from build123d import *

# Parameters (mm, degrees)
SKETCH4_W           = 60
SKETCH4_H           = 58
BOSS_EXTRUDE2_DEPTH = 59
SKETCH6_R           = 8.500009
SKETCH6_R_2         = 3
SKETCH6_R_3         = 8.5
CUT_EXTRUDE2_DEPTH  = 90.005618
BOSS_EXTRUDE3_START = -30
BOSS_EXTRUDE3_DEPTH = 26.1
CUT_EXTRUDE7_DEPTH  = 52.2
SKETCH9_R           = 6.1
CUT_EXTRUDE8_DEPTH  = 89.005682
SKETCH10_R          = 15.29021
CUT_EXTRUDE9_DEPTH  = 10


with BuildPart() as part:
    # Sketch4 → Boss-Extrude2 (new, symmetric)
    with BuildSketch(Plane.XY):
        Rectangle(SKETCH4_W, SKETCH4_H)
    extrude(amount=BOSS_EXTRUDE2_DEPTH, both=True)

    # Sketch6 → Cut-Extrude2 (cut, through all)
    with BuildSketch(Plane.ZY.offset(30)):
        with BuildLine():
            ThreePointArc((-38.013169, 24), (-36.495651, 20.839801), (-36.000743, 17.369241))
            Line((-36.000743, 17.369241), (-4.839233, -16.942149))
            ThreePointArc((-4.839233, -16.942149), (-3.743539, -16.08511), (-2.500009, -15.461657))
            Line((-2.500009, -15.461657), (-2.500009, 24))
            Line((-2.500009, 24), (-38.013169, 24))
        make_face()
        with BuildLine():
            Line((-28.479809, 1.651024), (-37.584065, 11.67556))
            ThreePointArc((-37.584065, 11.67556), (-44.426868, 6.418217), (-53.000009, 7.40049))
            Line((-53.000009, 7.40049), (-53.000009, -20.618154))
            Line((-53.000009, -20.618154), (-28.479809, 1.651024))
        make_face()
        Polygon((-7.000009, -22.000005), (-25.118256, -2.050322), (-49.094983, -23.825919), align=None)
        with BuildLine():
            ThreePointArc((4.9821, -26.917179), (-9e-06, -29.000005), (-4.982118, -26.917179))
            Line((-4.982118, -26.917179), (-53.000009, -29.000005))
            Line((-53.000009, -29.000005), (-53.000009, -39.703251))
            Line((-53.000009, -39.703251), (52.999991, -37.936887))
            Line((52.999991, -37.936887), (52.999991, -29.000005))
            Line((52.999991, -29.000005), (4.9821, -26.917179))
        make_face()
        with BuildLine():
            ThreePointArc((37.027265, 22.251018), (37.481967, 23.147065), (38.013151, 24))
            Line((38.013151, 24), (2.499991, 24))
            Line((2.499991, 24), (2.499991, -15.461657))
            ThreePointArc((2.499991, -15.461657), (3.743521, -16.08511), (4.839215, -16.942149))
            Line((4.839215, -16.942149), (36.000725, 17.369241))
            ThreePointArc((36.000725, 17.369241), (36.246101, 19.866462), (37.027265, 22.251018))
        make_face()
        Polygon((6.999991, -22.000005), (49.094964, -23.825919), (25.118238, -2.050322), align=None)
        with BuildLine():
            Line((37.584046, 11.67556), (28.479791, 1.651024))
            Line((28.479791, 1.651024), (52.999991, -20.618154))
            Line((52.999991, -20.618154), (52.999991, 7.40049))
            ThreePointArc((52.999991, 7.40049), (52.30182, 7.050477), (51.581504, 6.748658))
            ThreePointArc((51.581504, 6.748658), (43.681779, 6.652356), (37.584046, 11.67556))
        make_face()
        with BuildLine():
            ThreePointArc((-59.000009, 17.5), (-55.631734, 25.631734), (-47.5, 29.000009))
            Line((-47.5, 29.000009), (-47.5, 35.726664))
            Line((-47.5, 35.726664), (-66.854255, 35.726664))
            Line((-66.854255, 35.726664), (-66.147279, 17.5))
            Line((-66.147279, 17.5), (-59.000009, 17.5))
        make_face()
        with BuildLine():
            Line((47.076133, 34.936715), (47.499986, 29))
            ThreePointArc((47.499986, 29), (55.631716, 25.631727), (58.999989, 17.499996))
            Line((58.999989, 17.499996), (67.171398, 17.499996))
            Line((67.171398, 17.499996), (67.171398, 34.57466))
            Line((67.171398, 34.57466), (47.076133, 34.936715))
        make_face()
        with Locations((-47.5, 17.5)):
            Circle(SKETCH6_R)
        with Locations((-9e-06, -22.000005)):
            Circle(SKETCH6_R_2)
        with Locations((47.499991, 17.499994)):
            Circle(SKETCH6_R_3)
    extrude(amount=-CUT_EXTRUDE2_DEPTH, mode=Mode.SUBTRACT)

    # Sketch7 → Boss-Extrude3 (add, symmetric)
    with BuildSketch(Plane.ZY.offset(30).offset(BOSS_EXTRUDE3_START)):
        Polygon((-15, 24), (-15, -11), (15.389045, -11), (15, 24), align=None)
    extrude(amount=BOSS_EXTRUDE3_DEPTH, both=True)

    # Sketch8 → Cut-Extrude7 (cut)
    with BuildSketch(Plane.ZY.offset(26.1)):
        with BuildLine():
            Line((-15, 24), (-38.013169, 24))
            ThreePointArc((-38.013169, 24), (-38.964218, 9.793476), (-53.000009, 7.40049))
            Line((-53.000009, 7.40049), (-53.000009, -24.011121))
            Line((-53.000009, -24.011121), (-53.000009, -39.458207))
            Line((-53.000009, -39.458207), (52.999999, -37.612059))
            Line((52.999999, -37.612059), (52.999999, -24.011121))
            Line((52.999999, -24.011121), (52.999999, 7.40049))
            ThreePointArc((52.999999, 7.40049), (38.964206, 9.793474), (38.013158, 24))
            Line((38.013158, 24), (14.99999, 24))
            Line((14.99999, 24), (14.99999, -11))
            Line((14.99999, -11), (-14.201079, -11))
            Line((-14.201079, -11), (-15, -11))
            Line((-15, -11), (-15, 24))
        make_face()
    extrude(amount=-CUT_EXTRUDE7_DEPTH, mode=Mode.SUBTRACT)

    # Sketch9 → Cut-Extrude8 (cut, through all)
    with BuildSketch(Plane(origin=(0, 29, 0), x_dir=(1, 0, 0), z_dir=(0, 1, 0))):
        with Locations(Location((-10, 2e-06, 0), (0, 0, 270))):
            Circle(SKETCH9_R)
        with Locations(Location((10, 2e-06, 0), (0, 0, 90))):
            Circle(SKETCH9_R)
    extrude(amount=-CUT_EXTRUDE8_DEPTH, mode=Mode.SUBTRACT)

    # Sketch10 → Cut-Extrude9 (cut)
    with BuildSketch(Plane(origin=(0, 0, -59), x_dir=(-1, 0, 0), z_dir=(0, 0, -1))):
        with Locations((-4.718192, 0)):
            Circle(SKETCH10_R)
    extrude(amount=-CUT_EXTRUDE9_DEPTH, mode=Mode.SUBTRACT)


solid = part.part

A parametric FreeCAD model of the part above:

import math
import FreeCAD as App
import Part
import Sketcher

V = App.Vector

doc = App.newDocument("Part")
body = doc.addObject("PartDesign::Body", "Body")

# Sketch on XY plane
sketch1 = body.newObject("Sketcher::SketchObject", "Sketch")
sketch1.AttachmentSupport = (doc.getObject("XY_Plane"), [""])
sketch1.MapMode = "FlatFace"
sketch1.addGeometry(Part.LineSegment(V(-30, 29, 0), V(-30, -29, 0)), False)
sketch1.addGeometry(Part.LineSegment(V(-30, -29, 0), V(30, -29, 0)), False)
sketch1.addGeometry(Part.LineSegment(V(30, -29, 0), V(30, 29, 0)), False)
sketch1.addGeometry(Part.LineSegment(V(30, 29, 0), V(-30, 29, 0)), False)
sketch1.addConstraint(Sketcher.Constraint("Coincident", 0, 2, 1, 1))
sketch1.addConstraint(Sketcher.Constraint("Coincident", 1, 2, 2, 1))
sketch1.addConstraint(Sketcher.Constraint("Coincident", 2, 2, 3, 1))
sketch1.addConstraint(Sketcher.Constraint("Coincident", 3, 2, 0, 1))
sketch1.addConstraint(Sketcher.Constraint("Vertical", 0))
sketch1.addConstraint(Sketcher.Constraint("Horizontal", 1))
sketch1.addConstraint(Sketcher.Constraint("Vertical", 2))
sketch1.addConstraint(Sketcher.Constraint("Horizontal", 3))
sketch1.addConstraint(Sketcher.Constraint("Symmetric", 0, 2, 2, 2, -1, 1))
sketch1.addConstraint(Sketcher.Constraint("DistanceX", 1, 1, 1, 2, 60.0))
sketch1.addConstraint(Sketcher.Constraint("DistanceY", 0, 2, 0, 1, 58.0))
pad1 = body.newObject("PartDesign::Pad", "Pad")
pad1.Profile = sketch1
pad1.Length = 118
pad1.Midplane = True

# Sketch on YZ plane
sketch2 = body.newObject("Sketcher::SketchObject", "Sketch001")
sketch2.AttachmentSupport = (doc.getObject("YZ_Plane"), [""])
sketch2.MapMode = "FlatFace"
sketch2.AttachmentOffset = App.Placement(V(0, 0, -30), App.Rotation())
sketch2.addGeometry(Part.ArcOfCircle(Part.Circle(V(17.499992, -47.500015, 0), V(0, 0, 1), 11.500016), math.radians(55.582615), math.radians(90.651445)), False)
sketch2.addGeometry(Part.LineSegment(V(17.369241, -36.000743, 0), V(-16.942149, -4.839233, 0)), False)
sketch2.addGeometry(Part.ArcOfCircle(Part.Circle(V(-21.999992, -0.000018, 0), V(0, 0, 1), 6.999984), math.radians(-43.734533), math.radians(-20.924806)), False)
sketch2.addGeometry(Part.LineSegment(V(-15.461657, -2.500009, 0), V(24, -2.500009, 0)), False)
sketch2.addGeometry(Part.LineSegment(V(24, -2.500009, 0), V(24, -38.013169, 0)), False)
sketch2.addGeometry(Part.LineSegment(V(1.651024, -28.479809, 0), V(11.67556, -37.584065, 0)), False)
sketch2.addGeometry(Part.ArcOfCircle(Part.Circle(V(17.499994, -47.500009, 0), V(0, 0, 1), 11.499999), math.radians(120.429154), math.radians(208.571879)), False)
sketch2.addGeometry(Part.LineSegment(V(7.40049, -53.000009, 0), V(-20.618154, -53.000009, 0)), False)
sketch2.addGeometry(Part.LineSegment(V(-20.618154, -53.000009, 0), V(1.651024, -28.479809, 0)), False)
sketch2.addGeometry(Part.LineSegment(V(-22.000005, -7.000009, 0), V(-2.050322, -25.118256, 0)), False)
sketch2.addGeometry(Part.LineSegment(V(-2.050322, -25.118256, 0), V(-23.825919, -49.094983, 0)), False)
sketch2.addGeometry(Part.LineSegment(V(-23.825919, -49.094983, 0), V(-22.000005, -7.000009, 0)), False)
sketch2.addGeometry(Part.ArcOfCircle(Part.Circle(V(-22.000003, -0.000009, 0), V(0, 0, 1), 7.000002), math.radians(134.624184), math.radians(225.375816)), False)
sketch2.addGeometry(Part.LineSegment(V(-26.917179, -4.982118, 0), V(-29.000005, -53.000009, 0)), False)
sketch2.addGeometry(Part.LineSegment(V(-29.000005, -53.000009, 0), V(-39.703251, -53.000009, 0)), False)
sketch2.addGeometry(Part.LineSegment(V(-39.703251, -53.000009, 0), V(-37.936887, 52.999991, 0)), False)
sketch2.addGeometry(Part.LineSegment(V(-37.936887, 52.999991, 0), V(-29.000005, 52.999991, 0)), False)
sketch2.addGeometry(Part.LineSegment(V(-29.000005, 52.999991, 0), V(-26.917179, 4.9821, 0)), False)
sketch2.addGeometry(Part.ArcOfCircle(Part.Circle(V(17.499996, 47.499983, 0), V(0, 0, 1), 11.500002), math.radians(-65.598248), math.radians(-55.582593)), False)
sketch2.addGeometry(Part.LineSegment(V(24, 38.013151, 0), V(24, 2.499991, 0)), False)
sketch2.addGeometry(Part.LineSegment(V(24, 2.499991, 0), V(-15.461657, 2.499991, 0)), False)
sketch2.addGeometry(Part.ArcOfCircle(Part.Circle(V(-21.999992, 0, 0), V(0, 0, 1), 6.999984), math.radians(20.924806), math.radians(43.734533)), False)
sketch2.addGeometry(Part.LineSegment(V(-16.942149, 4.839215, 0), V(17.369241, 36.000725, 0)), False)
sketch2.addGeometry(Part.ArcOfCircle(Part.Circle(V(17.499992, 47.500002, 0), V(0, 0, 1), 11.50002), math.radians(-90.651447), math.radians(-65.598268)), False)
sketch2.addGeometry(Part.LineSegment(V(-22.000005, 6.999991, 0), V(-23.825919, 49.094964, 0)), False)
sketch2.addGeometry(Part.LineSegment(V(-23.825919, 49.094964, 0), V(-2.050322, 25.118238, 0)), False)
sketch2.addGeometry(Part.LineSegment(V(-2.050322, 25.118238, 0), V(-22.000005, 6.999991, 0)), False)
sketch2.addGeometry(Part.LineSegment(V(11.67556, 37.584046, 0), V(1.651024, 28.479791, 0)), False)
sketch2.addGeometry(Part.LineSegment(V(1.651024, 28.479791, 0), V(-20.618154, 52.999991, 0)), False)
sketch2.addGeometry(Part.LineSegment(V(-20.618154, 52.999991, 0), V(7.40049, 52.999991, 0)), False)
sketch2.addGeometry(Part.ArcOfCircle(Part.Circle(V(17.500172, 47.499912, 0), V(0, 0, 1), 11.500193), math.radians(151.428196), math.radians(159.211759)), False)
sketch2.addGeometry(Part.ArcOfCircle(Part.Circle(V(17.499993, 47.49999, 0), V(0, 0, 1), 11.499998), math.radians(159.211806), math.radians(239.570851)), False)
sketch2.addGeometry(Part.ArcOfCircle(Part.Circle(V(17.499999, -47.499999, 0), V(0, 0, 1), 11.50001), math.radians(-89.999994), math.radians(-0.000006)), False)
sketch2.addGeometry(Part.LineSegment(V(29.000009, -47.5, 0), V(35.726664, -47.5, 0)), False)
sketch2.addGeometry(Part.LineSegment(V(35.726664, -47.5, 0), V(35.726664, -66.854255, 0)), False)
sketch2.addGeometry(Part.LineSegment(V(35.726664, -66.854255, 0), V(17.5, -66.147279, 0)), False)
sketch2.addGeometry(Part.LineSegment(V(17.5, -66.147279, 0), V(17.5, -59.000009, 0)), False)
sketch2.addGeometry(Part.LineSegment(V(34.936715, 47.076133, 0), V(29, 47.499986, 0)), False)
sketch2.addGeometry(Part.ArcOfCircle(Part.Circle(V(17.499997, 47.499986, 0), V(0, 0, 1), 11.500003), math.radians(0.000002), math.radians(90.000003)), False)
sketch2.addGeometry(Part.LineSegment(V(17.499996, 58.999989, 0), V(17.499996, 67.171398, 0)), False)
sketch2.addGeometry(Part.LineSegment(V(17.499996, 67.171398, 0), V(34.57466, 67.171398, 0)), False)
sketch2.addGeometry(Part.LineSegment(V(34.57466, 67.171398, 0), V(34.936715, 47.076133, 0)), False)
sketch2.addGeometry(Part.Circle(V(17.5, -47.5, 0), V(0, 0, 1), 8.500009), False)
sketch2.addGeometry(Part.Circle(V(-22.000005, -0.000009, 0), V(0, 0, 1), 3), False)
sketch2.addGeometry(Part.Circle(V(17.499994, 47.499991, 0), V(0, 0, 1), 8.5), False)
sketch2.addConstraint(Sketcher.Constraint("Coincident", 0, 2, 1, 1))
sketch2.addConstraint(Sketcher.Constraint("Coincident", 1, 2, 2, 1))
sketch2.addConstraint(Sketcher.Constraint("Coincident", 2, 2, 3, 1))
sketch2.addConstraint(Sketcher.Constraint("Coincident", 3, 2, 4, 1))
sketch2.addConstraint(Sketcher.Constraint("Coincident", 4, 2, 0, 1))
sketch2.addConstraint(Sketcher.Constraint("Coincident", 5, 2, 6, 1))
sketch2.addConstraint(Sketcher.Constraint("Coincident", 6, 2, 7, 1))
sketch2.addConstraint(Sketcher.Constraint("Coincident", 7, 2, 8, 1))
sketch2.addConstraint(Sketcher.Constraint("Coincident", 8, 2, 5, 1))
sketch2.addConstraint(Sketcher.Constraint("Coincident", 9, 2, 10, 1))
sketch2.addConstraint(Sketcher.Constraint("Coincident", 10, 2, 11, 1))
sketch2.addConstraint(Sketcher.Constraint("Coincident", 11, 2, 9, 1))
sketch2.addConstraint(Sketcher.Constraint("Coincident", 12, 2, 13, 1))
sketch2.addConstraint(Sketcher.Constraint("Coincident", 13, 2, 14, 1))
sketch2.addConstraint(Sketcher.Constraint("Coincident", 14, 2, 15, 1))
sketch2.addConstraint(Sketcher.Constraint("Coincident", 15, 2, 16, 1))
sketch2.addConstraint(Sketcher.Constraint("Coincident", 16, 2, 17, 1))
sketch2.addConstraint(Sketcher.Constraint("Coincident", 17, 2, 12, 1))
sketch2.addConstraint(Sketcher.Constraint("Coincident", 18, 2, 19, 1))
sketch2.addConstraint(Sketcher.Constraint("Coincident", 19, 2, 20, 1))
sketch2.addConstraint(Sketcher.Constraint("Coincident", 20, 2, 21, 1))
sketch2.addConstraint(Sketcher.Constraint("Coincident", 21, 2, 22, 1))
sketch2.addConstraint(Sketcher.Constraint("Coincident", 22, 2, 23, 1))
sketch2.addConstraint(Sketcher.Constraint("Coincident", 23, 2, 18, 1))
sketch2.addConstraint(Sketcher.Constraint("Coincident", 24, 2, 25, 1))
sketch2.addConstraint(Sketcher.Constraint("Coincident", 25, 2, 26, 1))
sketch2.addConstraint(Sketcher.Constraint("Coincident", 26, 2, 24, 1))
sketch2.addConstraint(Sketcher.Constraint("Coincident", 27, 2, 28, 1))
sketch2.addConstraint(Sketcher.Constraint("Coincident", 28, 2, 29, 1))
sketch2.addConstraint(Sketcher.Constraint("Coincident", 29, 2, 30, 1))
sketch2.addConstraint(Sketcher.Constraint("Coincident", 30, 2, 31, 1))
sketch2.addConstraint(Sketcher.Constraint("Coincident", 31, 2, 27, 1))
sketch2.addConstraint(Sketcher.Constraint("Coincident", 32, 2, 33, 1))
sketch2.addConstraint(Sketcher.Constraint("Coincident", 33, 2, 34, 1))
sketch2.addConstraint(Sketcher.Constraint("Coincident", 34, 2, 35, 1))
sketch2.addConstraint(Sketcher.Constraint("Coincident", 35, 2, 36, 1))
sketch2.addConstraint(Sketcher.Constraint("Coincident", 36, 2, 32, 1))
sketch2.addConstraint(Sketcher.Constraint("Coincident", 37, 2, 38, 1))
sketch2.addConstraint(Sketcher.Constraint("Coincident", 38, 2, 39, 1))
sketch2.addConstraint(Sketcher.Constraint("Coincident", 39, 2, 40, 1))
sketch2.addConstraint(Sketcher.Constraint("Coincident", 40, 2, 41, 1))
sketch2.addConstraint(Sketcher.Constraint("Coincident", 41, 2, 37, 1))
sketch2.addConstraint(Sketcher.Constraint("Horizontal", 3))
sketch2.addConstraint(Sketcher.Constraint("Vertical", 4))
sketch2.addConstraint(Sketcher.Constraint("Horizontal", 7))
sketch2.addConstraint(Sketcher.Constraint("Horizontal", 14))
sketch2.addConstraint(Sketcher.Constraint("Horizontal", 16))
sketch2.addConstraint(Sketcher.Constraint("Vertical", 19))
sketch2.addConstraint(Sketcher.Constraint("Horizontal", 20))
sketch2.addConstraint(Sketcher.Constraint("Horizontal", 29))
sketch2.addConstraint(Sketcher.Constraint("Horizontal", 33))
sketch2.addConstraint(Sketcher.Constraint("Vertical", 34))
sketch2.addConstraint(Sketcher.Constraint("Vertical", 36))
sketch2.addConstraint(Sketcher.Constraint("Vertical", 39))
sketch2.addConstraint(Sketcher.Constraint("Horizontal", 40))
sketch2.addConstraint(Sketcher.Constraint("Coincident", 6, 3, 0, 3))
sketch2.addConstraint(Sketcher.Constraint("Coincident", 31, 3, 18, 3))
sketch2.addConstraint(Sketcher.Constraint("Coincident", 38, 3, 18, 3))
sketch2.addConstraint(Sketcher.Constraint("Coincident", 42, 3, 32, 3))
sketch2.addConstraint(Sketcher.Constraint("Coincident", 43, 3, 12, 3))
sketch2.addConstraint(Sketcher.Constraint("Coincident", 44, 3, 18, 3))
sketch2.addConstraint(Sketcher.Constraint("PointOnObject", 21, 3, -1))
sketch2.addConstraint(Sketcher.Constraint("Diameter", 43, 6.0))
sketch2.addConstraint(Sketcher.Constraint("Diameter", 44, 17.0))
sketch2.addConstraint(Sketcher.Constraint("Radius", 6, 11.499999))
sketch2.addConstraint(Sketcher.Constraint("Radius", 18, 11.500002))
sketch2.addConstraint(Sketcher.Constraint("Radius", 31, 11.499998))
sketch2.addConstraint(Sketcher.Constraint("DistanceX", -1, 1, 3, 2, 24.0))
sketch2.addConstraint(Sketcher.Constraint("DistanceX", -1, 1, 18, 2, 24.0))
sketch2.addConstraint(Sketcher.Constraint("DistanceX", -1, 1, 37, 2, 29.0))
sketch2.addConstraint(Sketcher.Constraint("DistanceY", 0, 3, 18, 3, 94.999999))
sketch2.addConstraint(Sketcher.Constraint("DistanceY", 11, 2, 43, 3, 7.0))
sketch2.addConstraint(Sketcher.Constraint("DistanceY", 43, 3, 15, 2, 53.0))
sketch2.addConstraint(Sketcher.Constraint("DistanceY", 3, 2, 19, 2, 5.0))
sketch2.addConstraint(Sketcher.Constraint("DistanceY", 43, 3, 26, 2, 7.0))
sketch2.addConstraint(Sketcher.Constraint("DistanceY", -1, 1, 23, 3, 47.500002))
sketch2.addConstraint(Sketcher.Constraint("DistanceX", -1, 1, 32, 3, 17.499999))
sketch2.addConstraint(Sketcher.Constraint("DistanceY", 32, 3, -1, 1, 47.499999))
sketch2.addConstraint(Sketcher.Constraint("DistanceY", 32, 2, -1, 1, 47.5))
sketch2.addConstraint(Sketcher.Constraint("DistanceX", -1, 1, 35, 2, 17.5))
sketch2.addConstraint(Sketcher.Constraint("DistanceY", 6, 3, 12, 3, 47.5))
sketch2.addConstraint(Sketcher.Constraint("DistanceY", 2, 3, 18, 3, 47.500001))
sketch2.addConstraint(Sketcher.Constraint("DistanceX", 12, 3, 18, 3, 39.499999))
sketch2.addConstraint(Sketcher.Constraint("DistanceX", 12, 3, 32, 3, 39.500001))
sketch2.addConstraint(Sketcher.Constraint("DistanceY", 2, 2, 12, 3, 2.5))
sketch2.addConstraint(Sketcher.Constraint("DistanceY", 6, 2, 6, 3, 5.5))
sketch2.addConstraint(Sketcher.Constraint("DistanceX", 16, 2, 44, 3, 46.499999))
sketch2.addConstraint(Sketcher.Constraint("DistanceY", 31, 3, 29, 2, 5.500001))
sketch2.addConstraint(Sketcher.Constraint("DistanceY", 36, 2, 6, 3, 11.5))
sketch2.addConstraint(Sketcher.Constraint("Diameter", 42, 17.000018))
sketch2.addConstraint(Sketcher.Constraint("Radius", 23, 11.50002))
sketch2.addConstraint(Sketcher.Constraint("Radius", 32, 11.50001))
sketch2.addConstraint(Sketcher.Constraint("Radius", 0, 11.500016))
sketch2.addConstraint(Sketcher.Constraint("Radius", 2, 6.999984))
sketch2.addConstraint(Sketcher.Constraint("Radius", 12, 7.000002))
sketch2.addConstraint(Sketcher.Constraint("Radius", 21, 6.999984))
sketch2.addConstraint(Sketcher.Constraint("Radius", 30, 11.500193))
sketch2.addConstraint(Sketcher.Constraint("DistanceX", 16, 1, 16, 2, 8.936882))
sketch2.addConstraint(Sketcher.Constraint("DistanceY", 4, 2, 4, 1, 35.51316))
sketch2.addConstraint(Sketcher.Constraint("DistanceY", 36, 1, 36, 2, 7.14727))
sketch2.addConstraint(Sketcher.Constraint("DistanceY", 39, 1, 39, 2, 8.171409))
sketch2.addConstraint(Sketcher.Constraint("DistanceY", -1, 1, 17, 2, 4.9821))
sketch2.addConstraint(Sketcher.Constraint("DistanceY", 12, 2, 2, 3, 4.9821))
sketch2.addConstraint(Sketcher.Constraint("DistanceY", 13, 2, 8, 2, 24.5202))
sketch2.addConstraint(Sketcher.Constraint("DistanceY", 8, 2, 19, 2, 30.9798))
sketch2.addConstraint(Sketcher.Constraint("DistanceY", 27, 2, 28, 2, 24.5202))
sketch2.addConstraint(Sketcher.Constraint("Distance", 35, 18.24037))
sketch2.addConstraint(Sketcher.Constraint("DistanceX", 3, 1, 3, 2, 39.461657))
sketch2.addConstraint(Sketcher.Constraint("DistanceX", 7, 2, 7, 1, 28.018644))
sketch2.addConstraint(Sketcher.Constraint("DistanceX", 14, 2, 14, 1, 10.703246))
sketch2.addConstraint(Sketcher.Constraint("DistanceX", 20, 2, 20, 1, 39.461657))
sketch2.addConstraint(Sketcher.Constraint("DistanceX", 29, 1, 29, 2, 28.018644))
sketch2.addConstraint(Sketcher.Constraint("DistanceX", 33, 1, 33, 2, 6.726655))
sketch2.addConstraint(Sketcher.Constraint("DistanceX", 40, 1, 40, 2, 17.074664))
sketch2.addConstraint(Sketcher.Constraint("DistanceX", -1, 1, 30, 3, 17.500172))
sketch2.addConstraint(Sketcher.Constraint("DistanceX", -1, 1, 0, 2, 17.369241))
sketch2.addConstraint(Sketcher.Constraint("DistanceX", 1, 2, -1, 1, 16.942149))
sketch2.addConstraint(Sketcher.Constraint("DistanceX", -1, 1, 5, 2, 11.67556))
sketch2.addConstraint(Sketcher.Constraint("DistanceX", 9, 2, -1, 1, 2.050322))
sketch2.addConstraint(Sketcher.Constraint("DistanceX", 10, 2, -1, 1, 23.825919))
sketch2.addConstraint(Sketcher.Constraint("DistanceX", 14, 2, -1, 1, 39.703251))
sketch2.addConstraint(Sketcher.Constraint("DistanceX", 21, 2, -1, 1, 16.942149))
sketch2.addConstraint(Sketcher.Constraint("DistanceX", -1, 1, 22, 2, 17.369241))
sketch2.addConstraint(Sketcher.Constraint("DistanceX", 24, 2, -1, 1, 23.825919))
sketch2.addConstraint(Sketcher.Constraint("DistanceX", 25, 2, -1, 1, 2.050322))
sketch2.addConstraint(Sketcher.Constraint("DistanceY", -1, 1, 25, 2, 25.118238))
sketch2.addConstraint(Sketcher.Constraint("DistanceX", -1, 1, 31, 2, 11.67556))
sketch2.addConstraint(Sketcher.Constraint("DistanceX", -1, 1, 40, 2, 34.57466))
sketch2.addConstraint(Sketcher.Constraint("DistanceY", 5, 2, 9, 2, 12.465809))
sketch2.addConstraint(Sketcher.Constraint("DistanceX", 13, 2, 8, 2, 30.651029))
sketch2.addConstraint(Sketcher.Constraint("DistanceY", 22, 2, 23, 2, 1.02654))
sketch2.addConstraint(Sketcher.Constraint("DistanceX", 28, 2, 27, 2, 22.269178))
sketch2.addConstraint(Sketcher.Constraint("DistanceX", 30, 2, 38, 3, 10.751339))
sketch2.addConstraint(Sketcher.Constraint("DistanceY", 37, 2, 40, 2, 19.671412))
sketch2.addConstraint(Sketcher.Constraint("DistanceY", 41, 2, 30, 3, 0.423779))
sketch2.addConstraint(Sketcher.Constraint("DistanceX", 38, 3, 41, 2, 17.436718))
sketch2.addConstraint(Sketcher.Constraint("Distance", 9, 26.949225))
sketch2.addConstraint(Sketcher.Constraint("Distance", 10, 32.389197))
sketch2.addConstraint(Sketcher.Constraint("Distance", 24, 42.134555))
sketch2.addConstraint(Sketcher.Constraint("Distance", 25, 32.389196))
pocket1 = body.newObject("PartDesign::Pocket", "Pocket")
pocket1.Profile = sketch2
pocket1.Type = "ThroughAll"
pocket1.Reversed = True

# Sketch on YZ plane
sketch3 = body.newObject("Sketcher::SketchObject", "Sketch002")
sketch3.AttachmentSupport = (doc.getObject("YZ_Plane"), [""])
sketch3.MapMode = "FlatFace"
sketch3.addGeometry(Part.LineSegment(V(24, -15, 0), V(-11, -15, 0)), False)
sketch3.addGeometry(Part.LineSegment(V(-11, -15, 0), V(-11, 15.389045, 0)), False)
sketch3.addGeometry(Part.LineSegment(V(-11, 15.389045, 0), V(24, 15, 0)), False)
sketch3.addGeometry(Part.LineSegment(V(24, 15, 0), V(24, -15, 0)), False)
sketch3.addConstraint(Sketcher.Constraint("Coincident", 0, 2, 1, 1))
sketch3.addConstraint(Sketcher.Constraint("Coincident", 1, 2, 2, 1))
sketch3.addConstraint(Sketcher.Constraint("Coincident", 2, 2, 3, 1))
sketch3.addConstraint(Sketcher.Constraint("Coincident", 3, 2, 0, 1))
sketch3.addConstraint(Sketcher.Constraint("Horizontal", 0))
sketch3.addConstraint(Sketcher.Constraint("Vertical", 1))
sketch3.addConstraint(Sketcher.Constraint("Vertical", 3))
sketch3.addConstraint(Sketcher.Constraint("DistanceX", 0, 2, 0, 1, 35.0))
sketch3.addConstraint(Sketcher.Constraint("DistanceY", 3, 2, 3, 1, 30.0))
sketch3.addConstraint(Sketcher.Constraint("DistanceX", 0, 2, -1, 1, 11.0))
sketch3.addConstraint(Sketcher.Constraint("DistanceY", 0, 2, -1, 1, 15.0))
sketch3.addConstraint(Sketcher.Constraint("DistanceY", 1, 1, 1, 2, 30.389045))
pad2 = body.newObject("PartDesign::Pad", "Pad001")
pad2.Profile = sketch3
pad2.Length = 52.2
pad2.Midplane = True

# Sketch on YZ plane
sketch4 = body.newObject("Sketcher::SketchObject", "Sketch003")
sketch4.AttachmentSupport = (doc.getObject("YZ_Plane"), [""])
sketch4.MapMode = "FlatFace"
sketch4.AttachmentOffset = App.Placement(V(0, 0, -26.1), App.Rotation())
sketch4.addGeometry(Part.LineSegment(V(24, -15, 0), V(24, -38.013169, 0)), False)
sketch4.addGeometry(Part.ArcOfCircle(Part.Circle(V(17.499996, -47.500003, 0), V(0, 0, 1), 11.500003), math.radians(55.582598), math.radians(208.571901)), False)
sketch4.addGeometry(Part.LineSegment(V(7.40049, -53.000009, 0), V(-39.458207, -53.000009, 0)), False)
sketch4.addGeometry(Part.LineSegment(V(-39.458207, -53.000009, 0), V(-37.612059, 52.999999, 0)), False)
sketch4.addGeometry(Part.LineSegment(V(-37.612059, 52.999999, 0), V(7.40049, 52.999999, 0)), False)
sketch4.addGeometry(Part.ArcOfCircle(Part.Circle(V(17.499994, 47.499991, 0), V(0, 0, 1), 11.500003), math.radians(151.428084), math.radians(304.417414)), False)
sketch4.addGeometry(Part.LineSegment(V(24, 38.013158, 0), V(24, 14.99999, 0)), False)
sketch4.addGeometry(Part.LineSegment(V(24, 14.99999, 0), V(-11, 14.99999, 0)), False)
sketch4.addGeometry(Part.LineSegment(V(-11, 14.99999, 0), V(-11, -15, 0)), False)
sketch4.addGeometry(Part.LineSegment(V(-11, -15, 0), V(24, -15, 0)), False)
sketch4.addConstraint(Sketcher.Constraint("Coincident", 0, 2, 1, 1))
sketch4.addConstraint(Sketcher.Constraint("Coincident", 1, 2, 2, 1))
sketch4.addConstraint(Sketcher.Constraint("Coincident", 2, 2, 3, 1))
sketch4.addConstraint(Sketcher.Constraint("Coincident", 3, 2, 4, 1))
sketch4.addConstraint(Sketcher.Constraint("Coincident", 4, 2, 5, 1))
sketch4.addConstraint(Sketcher.Constraint("Coincident", 5, 2, 6, 1))
sketch4.addConstraint(Sketcher.Constraint("Coincident", 6, 2, 7, 1))
sketch4.addConstraint(Sketcher.Constraint("Coincident", 7, 2, 8, 1))
sketch4.addConstraint(Sketcher.Constraint("Coincident", 8, 2, 9, 1))
sketch4.addConstraint(Sketcher.Constraint("Coincident", 9, 2, 0, 1))
sketch4.addConstraint(Sketcher.Constraint("Vertical", 0))
sketch4.addConstraint(Sketcher.Constraint("Horizontal", 2))
sketch4.addConstraint(Sketcher.Constraint("Horizontal", 4))
sketch4.addConstraint(Sketcher.Constraint("Vertical", 6))
sketch4.addConstraint(Sketcher.Constraint("Horizontal", 7))
sketch4.addConstraint(Sketcher.Constraint("Vertical", 8))
sketch4.addConstraint(Sketcher.Constraint("Horizontal", 9))
sketch4.addConstraint(Sketcher.Constraint("Equal", 1, 5))
sketch4.addConstraint(Sketcher.Constraint("Symmetric", 6, 2, 9, 2, -1))
sketch4.addConstraint(Sketcher.Constraint("Vertical", 1, 3, 5, 3))
sketch4.addConstraint(Sketcher.Constraint("Vertical", 1, 2, 4, 2))
sketch4.addConstraint(Sketcher.Constraint("Equal", 0, 6))
sketch4.addConstraint(Sketcher.Constraint("DistanceX", 7, 2, 7, 1, 35.0))
sketch4.addConstraint(Sketcher.Constraint("DistanceX", -1, 1, 0, 2, 24.0))
sketch4.addConstraint(Sketcher.Constraint("DistanceY", -1, 1, 3, 2, 52.999999))
sketch4.addConstraint(Sketcher.Constraint("DistanceY", 8, 2, -1, 1, 15.0))
sketch4.addConstraint(Sketcher.Constraint("DistanceY", 1, 2, 5, 3, 100.5))
sketch4.addConstraint(Sketcher.Constraint("Radius", 1, 11.500003))
sketch4.addConstraint(Sketcher.Constraint("DistanceX", 4, 1, 4, 2, 45.012549))
sketch4.addConstraint(Sketcher.Constraint("DistanceY", 0, 2, 0, 1, 23.013169))
sketch4.addConstraint(Sketcher.Constraint("DistanceX", 2, 2, 5, 3, 56.958201))
pocket2 = body.newObject("PartDesign::Pocket", "Pocket001")
pocket2.Profile = sketch4
pocket2.Length = 52.2
pocket2.Reversed = True

# Sketch on XZ plane
sketch5 = body.newObject("Sketcher::SketchObject", "Sketch004")
sketch5.AttachmentSupport = (doc.getObject("XZ_Plane"), [""])
sketch5.MapMode = "FlatFace"
sketch5.AttachmentOffset = App.Placement(V(0, 0, -29), App.Rotation())
sketch5.addGeometry(Part.Circle(V(-10, -0.000002, 0), V(0, 0, 1), 6.1), False)
sketch5.addGeometry(Part.Circle(V(10, -0.000002, 0), V(0, 0, 1), 6.1), False)
sketch5.addConstraint(Sketcher.Constraint("Equal", 0, 1))
sketch5.addConstraint(Sketcher.Constraint("Symmetric", 0, 3, 1, 3, -1, 1))
sketch5.addConstraint(Sketcher.Constraint("Horizontal", 0, 3, 1, 3))
sketch5.addConstraint(Sketcher.Constraint("Diameter", 0, 12.2))
sketch5.addConstraint(Sketcher.Constraint("DistanceX", 0, 3, -1, 1, 10.0))
pocket3 = body.newObject("PartDesign::Pocket", "Pocket002")
pocket3.Profile = sketch5
pocket3.Type = "ThroughAll"
pocket3.Reversed = True

# Sketch on XY plane
sketch6 = body.newObject("Sketcher::SketchObject", "Sketch005")
sketch6.AttachmentSupport = (doc.getObject("XY_Plane"), [""])
sketch6.MapMode = "FlatFace"
sketch6.AttachmentOffset = App.Placement(V(0, 0, -59), App.Rotation())
sketch6.addGeometry(Part.Circle(V(4.718192, 0, 0), V(0, 0, 1), 15.29021), False)
sketch6.addConstraint(Sketcher.Constraint("PointOnObject", 0, 3, -1))
sketch6.addConstraint(Sketcher.Constraint("Diameter", 0, 30.58042))
sketch6.addConstraint(Sketcher.Constraint("DistanceX", -1, 1, 0, 3, 4.718192))
pocket4 = body.newObject("PartDesign::Pocket", "Pocket003")
pocket4.Profile = sketch6
pocket4.Length = 10
pocket4.Reversed = True

doc.recompute()
